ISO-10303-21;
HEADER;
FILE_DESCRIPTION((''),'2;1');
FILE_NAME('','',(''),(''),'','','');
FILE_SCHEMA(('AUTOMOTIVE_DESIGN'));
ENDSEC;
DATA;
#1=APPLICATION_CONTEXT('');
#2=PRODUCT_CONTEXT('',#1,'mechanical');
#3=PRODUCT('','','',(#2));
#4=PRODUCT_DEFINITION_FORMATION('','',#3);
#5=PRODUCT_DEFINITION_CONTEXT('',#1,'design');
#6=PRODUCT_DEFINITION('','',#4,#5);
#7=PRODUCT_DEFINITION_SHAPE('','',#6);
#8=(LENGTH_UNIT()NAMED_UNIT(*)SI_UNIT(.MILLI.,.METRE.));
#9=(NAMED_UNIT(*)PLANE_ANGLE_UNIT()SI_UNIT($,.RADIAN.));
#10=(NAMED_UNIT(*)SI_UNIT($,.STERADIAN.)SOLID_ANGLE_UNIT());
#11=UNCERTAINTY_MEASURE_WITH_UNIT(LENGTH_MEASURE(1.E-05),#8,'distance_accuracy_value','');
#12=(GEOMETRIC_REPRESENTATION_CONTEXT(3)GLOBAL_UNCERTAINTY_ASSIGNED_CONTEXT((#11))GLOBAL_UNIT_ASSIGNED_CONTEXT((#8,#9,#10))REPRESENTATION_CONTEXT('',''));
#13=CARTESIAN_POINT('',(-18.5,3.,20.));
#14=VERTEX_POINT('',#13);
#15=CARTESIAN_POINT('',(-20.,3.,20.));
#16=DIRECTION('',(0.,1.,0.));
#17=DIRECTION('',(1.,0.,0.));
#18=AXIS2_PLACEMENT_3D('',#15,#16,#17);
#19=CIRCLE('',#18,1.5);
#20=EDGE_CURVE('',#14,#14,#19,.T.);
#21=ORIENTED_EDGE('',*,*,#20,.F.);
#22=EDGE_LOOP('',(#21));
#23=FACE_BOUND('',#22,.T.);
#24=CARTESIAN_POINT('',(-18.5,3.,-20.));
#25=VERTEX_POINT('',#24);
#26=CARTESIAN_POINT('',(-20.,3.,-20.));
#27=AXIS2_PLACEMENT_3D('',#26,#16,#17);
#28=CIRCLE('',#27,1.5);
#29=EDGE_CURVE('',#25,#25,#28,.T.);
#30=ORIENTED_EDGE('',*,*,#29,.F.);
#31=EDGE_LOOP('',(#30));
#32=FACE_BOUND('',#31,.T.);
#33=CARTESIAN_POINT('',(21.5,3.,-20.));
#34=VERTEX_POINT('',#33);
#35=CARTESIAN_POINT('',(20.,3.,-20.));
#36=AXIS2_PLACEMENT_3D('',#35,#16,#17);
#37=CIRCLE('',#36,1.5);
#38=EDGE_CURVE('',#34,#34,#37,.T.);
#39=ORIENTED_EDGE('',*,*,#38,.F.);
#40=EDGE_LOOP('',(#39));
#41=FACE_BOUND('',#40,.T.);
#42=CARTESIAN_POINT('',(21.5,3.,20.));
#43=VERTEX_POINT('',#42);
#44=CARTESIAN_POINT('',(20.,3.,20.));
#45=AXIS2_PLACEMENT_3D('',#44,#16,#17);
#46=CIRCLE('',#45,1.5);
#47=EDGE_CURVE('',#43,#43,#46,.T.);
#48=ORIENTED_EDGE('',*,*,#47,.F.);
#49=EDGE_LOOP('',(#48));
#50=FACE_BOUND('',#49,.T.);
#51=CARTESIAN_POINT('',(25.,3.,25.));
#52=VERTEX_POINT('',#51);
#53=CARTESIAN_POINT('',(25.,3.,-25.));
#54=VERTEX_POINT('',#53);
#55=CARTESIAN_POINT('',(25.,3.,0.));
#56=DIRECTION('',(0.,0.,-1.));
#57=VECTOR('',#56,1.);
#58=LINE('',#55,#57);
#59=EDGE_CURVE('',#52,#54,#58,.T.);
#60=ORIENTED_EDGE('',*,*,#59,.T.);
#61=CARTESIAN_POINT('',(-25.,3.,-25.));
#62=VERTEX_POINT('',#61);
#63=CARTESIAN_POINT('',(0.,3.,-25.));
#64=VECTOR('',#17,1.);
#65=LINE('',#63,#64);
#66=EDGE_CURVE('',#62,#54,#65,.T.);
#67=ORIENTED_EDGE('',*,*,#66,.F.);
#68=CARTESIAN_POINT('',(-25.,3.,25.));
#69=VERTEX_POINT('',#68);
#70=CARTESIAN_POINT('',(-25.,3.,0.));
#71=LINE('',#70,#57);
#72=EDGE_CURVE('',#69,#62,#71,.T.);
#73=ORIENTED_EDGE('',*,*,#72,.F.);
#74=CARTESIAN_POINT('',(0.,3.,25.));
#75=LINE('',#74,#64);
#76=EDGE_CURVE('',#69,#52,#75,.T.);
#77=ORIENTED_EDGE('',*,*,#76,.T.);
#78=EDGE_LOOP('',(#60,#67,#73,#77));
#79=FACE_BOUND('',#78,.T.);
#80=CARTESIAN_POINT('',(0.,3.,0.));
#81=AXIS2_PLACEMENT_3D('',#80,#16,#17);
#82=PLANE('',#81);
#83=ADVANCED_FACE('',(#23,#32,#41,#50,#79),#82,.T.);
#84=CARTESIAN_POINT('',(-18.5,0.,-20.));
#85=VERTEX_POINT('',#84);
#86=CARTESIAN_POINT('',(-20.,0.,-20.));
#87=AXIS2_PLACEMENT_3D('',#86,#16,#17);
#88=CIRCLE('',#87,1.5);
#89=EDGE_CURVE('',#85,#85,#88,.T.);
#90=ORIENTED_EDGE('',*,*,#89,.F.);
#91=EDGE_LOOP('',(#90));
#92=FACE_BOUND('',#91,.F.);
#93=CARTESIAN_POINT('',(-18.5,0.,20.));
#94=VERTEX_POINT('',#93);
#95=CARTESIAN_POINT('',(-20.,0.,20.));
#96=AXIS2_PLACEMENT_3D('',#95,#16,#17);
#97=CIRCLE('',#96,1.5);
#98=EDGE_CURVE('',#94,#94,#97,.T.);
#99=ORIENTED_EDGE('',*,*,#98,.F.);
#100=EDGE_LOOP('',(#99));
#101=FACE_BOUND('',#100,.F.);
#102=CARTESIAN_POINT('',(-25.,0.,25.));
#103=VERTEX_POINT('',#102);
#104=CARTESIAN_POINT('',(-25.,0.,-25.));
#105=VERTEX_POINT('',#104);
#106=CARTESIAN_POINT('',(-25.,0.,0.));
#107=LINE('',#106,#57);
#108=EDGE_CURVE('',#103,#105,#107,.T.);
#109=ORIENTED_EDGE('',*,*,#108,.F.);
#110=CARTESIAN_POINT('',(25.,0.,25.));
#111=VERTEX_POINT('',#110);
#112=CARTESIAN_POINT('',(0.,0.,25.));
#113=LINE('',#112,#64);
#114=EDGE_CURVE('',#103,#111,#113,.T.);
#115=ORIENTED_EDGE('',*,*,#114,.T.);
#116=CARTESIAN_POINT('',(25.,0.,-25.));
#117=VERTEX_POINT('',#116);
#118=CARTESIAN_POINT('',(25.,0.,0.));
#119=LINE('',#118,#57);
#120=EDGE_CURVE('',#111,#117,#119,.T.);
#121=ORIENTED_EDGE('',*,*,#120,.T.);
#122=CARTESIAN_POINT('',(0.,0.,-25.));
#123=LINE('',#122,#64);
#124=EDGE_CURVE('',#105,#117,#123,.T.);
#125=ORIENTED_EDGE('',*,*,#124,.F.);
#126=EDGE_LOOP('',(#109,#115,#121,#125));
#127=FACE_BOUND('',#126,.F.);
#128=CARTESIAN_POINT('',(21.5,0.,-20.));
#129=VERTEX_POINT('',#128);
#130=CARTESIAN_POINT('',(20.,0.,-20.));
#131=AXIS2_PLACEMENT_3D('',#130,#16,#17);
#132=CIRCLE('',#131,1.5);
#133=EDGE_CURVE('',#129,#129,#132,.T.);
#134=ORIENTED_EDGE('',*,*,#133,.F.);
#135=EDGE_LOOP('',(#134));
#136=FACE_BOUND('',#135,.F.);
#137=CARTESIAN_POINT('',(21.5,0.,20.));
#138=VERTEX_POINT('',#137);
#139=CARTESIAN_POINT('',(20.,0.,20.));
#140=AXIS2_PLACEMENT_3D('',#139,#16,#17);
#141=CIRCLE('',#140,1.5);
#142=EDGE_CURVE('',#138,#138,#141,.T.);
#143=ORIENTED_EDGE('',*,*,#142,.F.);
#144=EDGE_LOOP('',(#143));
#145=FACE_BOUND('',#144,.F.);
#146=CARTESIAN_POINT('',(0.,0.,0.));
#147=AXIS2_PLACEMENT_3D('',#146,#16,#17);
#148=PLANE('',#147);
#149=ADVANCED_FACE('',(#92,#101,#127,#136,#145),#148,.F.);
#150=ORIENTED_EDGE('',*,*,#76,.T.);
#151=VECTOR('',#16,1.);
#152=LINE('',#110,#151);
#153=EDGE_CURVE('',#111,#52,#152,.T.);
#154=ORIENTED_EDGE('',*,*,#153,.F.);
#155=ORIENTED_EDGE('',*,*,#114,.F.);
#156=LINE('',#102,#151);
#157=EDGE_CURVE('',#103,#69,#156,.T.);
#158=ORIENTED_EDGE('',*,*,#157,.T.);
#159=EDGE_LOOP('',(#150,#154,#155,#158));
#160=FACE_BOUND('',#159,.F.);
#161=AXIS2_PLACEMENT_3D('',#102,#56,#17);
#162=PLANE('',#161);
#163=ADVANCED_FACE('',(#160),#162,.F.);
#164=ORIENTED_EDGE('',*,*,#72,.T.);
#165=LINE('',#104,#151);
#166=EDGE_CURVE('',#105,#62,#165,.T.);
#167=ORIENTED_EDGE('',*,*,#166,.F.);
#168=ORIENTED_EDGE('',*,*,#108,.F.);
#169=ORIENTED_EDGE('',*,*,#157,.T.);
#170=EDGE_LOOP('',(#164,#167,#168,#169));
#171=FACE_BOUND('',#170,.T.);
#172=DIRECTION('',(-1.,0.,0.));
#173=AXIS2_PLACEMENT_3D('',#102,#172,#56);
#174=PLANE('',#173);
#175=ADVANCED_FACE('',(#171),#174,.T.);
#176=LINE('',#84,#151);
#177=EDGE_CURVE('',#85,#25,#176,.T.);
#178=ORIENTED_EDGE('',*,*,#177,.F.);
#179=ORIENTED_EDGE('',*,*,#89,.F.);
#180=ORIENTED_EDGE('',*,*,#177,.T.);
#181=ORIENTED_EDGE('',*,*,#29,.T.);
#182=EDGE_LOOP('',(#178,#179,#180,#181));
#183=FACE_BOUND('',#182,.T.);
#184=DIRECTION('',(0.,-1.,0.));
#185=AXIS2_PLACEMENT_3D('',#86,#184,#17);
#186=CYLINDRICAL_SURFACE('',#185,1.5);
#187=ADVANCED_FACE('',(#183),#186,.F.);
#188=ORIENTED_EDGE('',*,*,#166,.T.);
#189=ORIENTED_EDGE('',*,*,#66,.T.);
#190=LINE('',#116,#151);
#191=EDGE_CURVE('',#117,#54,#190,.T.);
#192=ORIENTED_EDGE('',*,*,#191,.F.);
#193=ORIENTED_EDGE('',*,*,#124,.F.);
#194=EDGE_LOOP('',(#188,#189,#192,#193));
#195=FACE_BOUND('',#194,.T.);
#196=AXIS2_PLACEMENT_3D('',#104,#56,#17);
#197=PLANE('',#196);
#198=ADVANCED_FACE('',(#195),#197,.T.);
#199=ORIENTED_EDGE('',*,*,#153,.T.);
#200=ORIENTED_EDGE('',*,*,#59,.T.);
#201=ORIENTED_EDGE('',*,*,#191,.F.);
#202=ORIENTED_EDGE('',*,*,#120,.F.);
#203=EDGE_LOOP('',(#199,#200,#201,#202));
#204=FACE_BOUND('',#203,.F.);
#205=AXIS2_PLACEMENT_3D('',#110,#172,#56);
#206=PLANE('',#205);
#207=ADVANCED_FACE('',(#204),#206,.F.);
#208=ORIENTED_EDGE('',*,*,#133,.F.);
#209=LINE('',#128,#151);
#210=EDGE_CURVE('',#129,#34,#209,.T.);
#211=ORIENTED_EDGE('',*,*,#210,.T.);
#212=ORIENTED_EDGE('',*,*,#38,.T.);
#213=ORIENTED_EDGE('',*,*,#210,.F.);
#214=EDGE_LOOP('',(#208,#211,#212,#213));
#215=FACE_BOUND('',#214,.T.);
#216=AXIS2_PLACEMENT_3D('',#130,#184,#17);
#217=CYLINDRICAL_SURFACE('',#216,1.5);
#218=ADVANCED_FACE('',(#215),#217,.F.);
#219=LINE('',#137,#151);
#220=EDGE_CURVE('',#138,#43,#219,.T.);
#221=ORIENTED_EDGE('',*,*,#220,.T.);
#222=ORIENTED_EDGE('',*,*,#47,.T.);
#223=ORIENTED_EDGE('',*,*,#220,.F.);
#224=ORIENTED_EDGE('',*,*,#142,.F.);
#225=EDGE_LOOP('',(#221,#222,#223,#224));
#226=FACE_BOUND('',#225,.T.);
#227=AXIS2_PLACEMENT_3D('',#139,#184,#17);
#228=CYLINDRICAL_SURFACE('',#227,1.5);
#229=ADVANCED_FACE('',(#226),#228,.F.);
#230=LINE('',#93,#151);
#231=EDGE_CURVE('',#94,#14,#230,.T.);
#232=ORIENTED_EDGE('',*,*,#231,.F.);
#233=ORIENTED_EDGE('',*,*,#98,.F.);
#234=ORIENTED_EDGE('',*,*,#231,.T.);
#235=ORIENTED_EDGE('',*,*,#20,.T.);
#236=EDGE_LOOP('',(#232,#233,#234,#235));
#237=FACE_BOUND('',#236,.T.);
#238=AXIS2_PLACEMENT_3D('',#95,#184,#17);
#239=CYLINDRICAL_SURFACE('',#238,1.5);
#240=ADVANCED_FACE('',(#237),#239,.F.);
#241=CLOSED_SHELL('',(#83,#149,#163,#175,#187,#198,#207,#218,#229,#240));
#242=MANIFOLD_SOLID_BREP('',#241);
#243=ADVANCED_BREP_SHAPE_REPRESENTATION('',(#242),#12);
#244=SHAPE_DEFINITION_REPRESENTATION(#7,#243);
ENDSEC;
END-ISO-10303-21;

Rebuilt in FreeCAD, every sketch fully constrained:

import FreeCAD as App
import Part
import Sketcher

V = App.Vector

doc = App.newDocument("Part")
body = doc.addObject("PartDesign::Body", "Body")

sketch1 = doc.addObject("Sketcher::SketchObject", "Sketch")
body.addObject(sketch1)
sketch1.AttachmentSupport = (doc.XZ_Plane, [""])
sketch1.MapMode = "FlatFace"
sketch1.addGeometry([
    Part.LineSegment(V(-25, -25, 0), V(-25, 25, 0)),
    Part.LineSegment(V(-25, 25, 0), V(25, 25, 0)),
    Part.LineSegment(V(25, 25, 0), V(25, -25, 0)),
    Part.LineSegment(V(25, -25, 0), V(-25, -25, 0)),
    Part.Circle(V(-20, 20, 0), V(0, 0, 1), 1.5),
    Part.Circle(V(20, 20, 0), V(0, 0, 1), 1.5),
    Part.Circle(V(-20, -20, 0), V(0, 0, 1), 1.5),
    Part.Circle(V(20, -20, 0), V(0, 0, 1), 1.5),
], False)
sketch1.addConstraint([
    Sketcher.Constraint("Coincident", 0, 2, 1, 1),
    Sketcher.Constraint("Coincident", 1, 2, 2, 1),
    Sketcher.Constraint("Coincident", 2, 2, 3, 1),
    Sketcher.Constraint("Coincident", 3, 2, 0, 1),
    Sketcher.Constraint("Vertical", 0),
    Sketcher.Constraint("Horizontal", 1),
    Sketcher.Constraint("Vertical", 2),
    Sketcher.Constraint("Horizontal", 3),
    Sketcher.Constraint("Equal", 4, 5),
    Sketcher.Constraint("Equal", 5, 6),
    Sketcher.Constraint("Equal", 6, 7),
    Sketcher.Constraint("Symmetric", 5, 3, 6, 3, -1, 1),
    Sketcher.Constraint("Symmetric", 4, 3, 7, 3, -1, 1),
    Sketcher.Constraint("Symmetric", 0, 2, 2, 2, -1, 1),
    Sketcher.Constraint("Symmetric", 4, 3, 5, 3, -2),
    Sketcher.Constraint("Equal", 3, 0),
    Sketcher.Constraint("Diameter", 4, 3.0),
    Sketcher.Constraint("DistanceX", 1, 1, 1, 2, 50.0),
    Sketcher.Constraint("DistanceX", 4, 3, -1, 1, 20.0),
    Sketcher.Constraint("DistanceY", -1, 1, 4, 3, 20.0),
])
pad1 = doc.addObject("PartDesign::Pad", "Pad")
body.addObject(pad1)
pad1.Profile = sketch1
pad1.Length = 3
pad1.Reversed = True

doc.recompute()
